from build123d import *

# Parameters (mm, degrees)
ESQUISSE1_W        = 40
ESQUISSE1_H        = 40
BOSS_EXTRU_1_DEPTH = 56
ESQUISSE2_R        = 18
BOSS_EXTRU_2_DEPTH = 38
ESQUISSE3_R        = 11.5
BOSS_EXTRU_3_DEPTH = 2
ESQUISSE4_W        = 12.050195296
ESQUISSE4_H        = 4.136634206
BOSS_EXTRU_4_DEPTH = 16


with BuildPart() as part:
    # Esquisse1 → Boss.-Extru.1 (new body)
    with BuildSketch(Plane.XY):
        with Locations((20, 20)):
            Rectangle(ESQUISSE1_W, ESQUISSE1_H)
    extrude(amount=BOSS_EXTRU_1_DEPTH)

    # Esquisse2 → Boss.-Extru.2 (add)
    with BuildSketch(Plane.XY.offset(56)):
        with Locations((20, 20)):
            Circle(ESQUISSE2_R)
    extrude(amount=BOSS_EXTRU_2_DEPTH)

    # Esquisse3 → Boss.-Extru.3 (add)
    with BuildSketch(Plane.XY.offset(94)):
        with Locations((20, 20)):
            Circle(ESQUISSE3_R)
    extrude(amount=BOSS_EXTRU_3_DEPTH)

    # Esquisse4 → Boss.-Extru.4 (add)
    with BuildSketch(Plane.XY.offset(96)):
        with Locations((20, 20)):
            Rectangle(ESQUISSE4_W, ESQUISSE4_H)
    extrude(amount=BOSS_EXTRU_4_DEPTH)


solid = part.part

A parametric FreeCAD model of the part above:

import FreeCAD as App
import Part
import Sketcher

V = App.Vector


def add_polygon(sketch, points):
    """Adds a closed chain of lines whose ends are joined by coincident constraints."""
    first, n = sketch.GeometryCount, len(points)
    for a, b in zip(points, points[1:] + points[:1]):
        sketch.addGeometry(Part.LineSegment(App.Vector(*a, 0), App.Vector(*b, 0)), False)
    for i in range(n):
        sketch.addConstraint(Sketcher.Constraint("Coincident", first + i, 2, first + (i + 1) % n, 1))

doc = App.newDocument("Part")
params = doc.addObject("Spreadsheet::Sheet", "Params")
for row, (alias, value) in enumerate([
    ("sketch1_width", "40 mm"),
    ("pad1_length", "56 mm"),
    ("sketch2_diameter", "36 mm"),
    ("pad2_length", "38 mm"),
    ("sketch3_diameter", "23 mm"),
    ("pad3_length", "2 mm"),
    ("pad4_length", "16 mm"),
], start=1):
    params.set(f"A{row}", alias)
    params.set(f"B{row}", "=" + value)
    params.setAlias(f"B{row}", alias)

body = doc.addObject("PartDesign::Body", "Body")

# Sketch on XY plane
sketch1 = doc.addObject("Sketcher::SketchObject", "Sketch")
body.addObject(sketch1)
sketch1.AttachmentSupport = (doc.XY_Plane, [""])
sketch1.MapMode = "FlatFace"
add_polygon(sketch1, [(0, 40), (0, 0), (40, 0), (40, 40)])  # lines 0-3
sketch1.addConstraint(Sketcher.Constraint("Vertical", 0))
sketch1.addConstraint(Sketcher.Constraint("Horizontal", 1))
sketch1.addConstraint(Sketcher.Constraint("Vertical", 2))
sketch1.addConstraint(Sketcher.Constraint("Horizontal", 3))
sketch1.addConstraint(Sketcher.Constraint("Coincident", 0, 2, -1, 1))
sketch1.addConstraint(Sketcher.Constraint("Equal", 3, 0))
sketch1.addConstraint(Sketcher.Constraint("DistanceX", 1, 1, 1, 2, 40.0))
sketch1.setExpression("Constraints[10]", "Params.sketch1_width")
pad1 = doc.addObject("PartDesign::Pad", "Pad")
body.addObject(pad1)
pad1.Profile = sketch1
pad1.setExpression("Length", "Params.pad1_length")

# Sketch on XY plane
sketch2 = doc.addObject("Sketcher::SketchObject", "Sketch001")
body.addObject(sketch2)
sketch2.AttachmentSupport = (doc.XY_Plane, [""])
sketch2.MapMode = "FlatFace"
sketch2.AttachmentOffset = App.Placement(V(0, 0, 56), App.Rotation())
sketch2.addGeometry(Part.Circle(V(20, 20, 0), V(0, 0, 1), 18), False)
sketch2.addConstraint(Sketcher.Constraint("Diameter", 0, 36.0))
sketch2.addConstraint(Sketcher.Constraint("DistanceX", -1, 1, 0, 3, 20.0))
sketch2.addConstraint(Sketcher.Constraint("DistanceY", -1, 1, 0, 3, 20.0))
sketch2.setExpression("Constraints[0]", "Params.sketch2_diameter")
pad2 = doc.addObject("PartDesign::Pad", "Pad001")
body.addObject(pad2)
pad2.Profile = sketch2
pad2.setExpression("Length", "Params.pad2_length")

# Sketch on XY plane
sketch3 = doc.addObject("Sketcher::SketchObject", "Sketch002")
body.addObject(sketch3)
sketch3.AttachmentSupport = (doc.XY_Plane, [""])
sketch3.MapMode = "FlatFace"
sketch3.AttachmentOffset = App.Placement(V(0, 0, 94), App.Rotation())
sketch3.addGeometry(Part.Circle(V(20, 20, 0), V(0, 0, 1), 12), False)
sketch3.addConstraint(Sketcher.Constraint("Diameter", 0, 23.0))
sketch3.addConstraint(Sketcher.Constraint("DistanceX", -1, 1, 0, 3, 20.0))
sketch3.addConstraint(Sketcher.Constraint("DistanceY", -1, 1, 0, 3, 20.0))
sketch3.setExpression("Constraints[0]", "Params.sketch3_diameter")
pad3 = doc.addObject("PartDesign::Pad", "Pad002")
body.addObject(pad3)
pad3.Profile = sketch3
pad3.setExpression("Length", "Params.pad3_length")

# Sketch on XY plane
sketch4 = doc.addObject("Sketcher::SketchObject", "Sketch003")
body.addObject(sketch4)
sketch4.AttachmentSupport = (doc.XY_Plane, [""])
sketch4.MapMode = "FlatFace"
sketch4.AttachmentOffset = App.Placement(V(0, 0, 96), App.Rotation())
add_polygon(sketch4, [(14, 22.1), (14, 17.9), (26, 17.9), (26, 22.1)])  # lines 0-3
sketch4.addConstraint(Sketcher.Constraint("Vertical", 0))
sketch4.addConstraint(Sketcher.Constraint("Horizontal", 1))
sketch4.addConstraint(Sketcher.Constraint("Vertical", 2))
sketch4.addConstraint(Sketcher.Constraint("Horizontal", 3))
sketch4.addConstraint(Sketcher.Constraint("DistanceX", 1, 1, 1, 2, 12.050195))
sketch4.addConstraint(Sketcher.Constraint("DistanceY", 0, 2, 0, 1, 4.136634))
sketch4.addConstraint(Sketcher.Constraint("DistanceX", -1, 1, 0, 2, 13.974902))
sketch4.addConstraint(Sketcher.Constraint("DistanceY", -1, 1, 0, 2, 17.931683))
pad4 = doc.addObject("PartDesign::Pad", "Pad003")
body.addObject(pad4)
pad4.Profile = sketch4
pad4.setExpression("Length", "Params.pad4_length")

doc.recompute()
